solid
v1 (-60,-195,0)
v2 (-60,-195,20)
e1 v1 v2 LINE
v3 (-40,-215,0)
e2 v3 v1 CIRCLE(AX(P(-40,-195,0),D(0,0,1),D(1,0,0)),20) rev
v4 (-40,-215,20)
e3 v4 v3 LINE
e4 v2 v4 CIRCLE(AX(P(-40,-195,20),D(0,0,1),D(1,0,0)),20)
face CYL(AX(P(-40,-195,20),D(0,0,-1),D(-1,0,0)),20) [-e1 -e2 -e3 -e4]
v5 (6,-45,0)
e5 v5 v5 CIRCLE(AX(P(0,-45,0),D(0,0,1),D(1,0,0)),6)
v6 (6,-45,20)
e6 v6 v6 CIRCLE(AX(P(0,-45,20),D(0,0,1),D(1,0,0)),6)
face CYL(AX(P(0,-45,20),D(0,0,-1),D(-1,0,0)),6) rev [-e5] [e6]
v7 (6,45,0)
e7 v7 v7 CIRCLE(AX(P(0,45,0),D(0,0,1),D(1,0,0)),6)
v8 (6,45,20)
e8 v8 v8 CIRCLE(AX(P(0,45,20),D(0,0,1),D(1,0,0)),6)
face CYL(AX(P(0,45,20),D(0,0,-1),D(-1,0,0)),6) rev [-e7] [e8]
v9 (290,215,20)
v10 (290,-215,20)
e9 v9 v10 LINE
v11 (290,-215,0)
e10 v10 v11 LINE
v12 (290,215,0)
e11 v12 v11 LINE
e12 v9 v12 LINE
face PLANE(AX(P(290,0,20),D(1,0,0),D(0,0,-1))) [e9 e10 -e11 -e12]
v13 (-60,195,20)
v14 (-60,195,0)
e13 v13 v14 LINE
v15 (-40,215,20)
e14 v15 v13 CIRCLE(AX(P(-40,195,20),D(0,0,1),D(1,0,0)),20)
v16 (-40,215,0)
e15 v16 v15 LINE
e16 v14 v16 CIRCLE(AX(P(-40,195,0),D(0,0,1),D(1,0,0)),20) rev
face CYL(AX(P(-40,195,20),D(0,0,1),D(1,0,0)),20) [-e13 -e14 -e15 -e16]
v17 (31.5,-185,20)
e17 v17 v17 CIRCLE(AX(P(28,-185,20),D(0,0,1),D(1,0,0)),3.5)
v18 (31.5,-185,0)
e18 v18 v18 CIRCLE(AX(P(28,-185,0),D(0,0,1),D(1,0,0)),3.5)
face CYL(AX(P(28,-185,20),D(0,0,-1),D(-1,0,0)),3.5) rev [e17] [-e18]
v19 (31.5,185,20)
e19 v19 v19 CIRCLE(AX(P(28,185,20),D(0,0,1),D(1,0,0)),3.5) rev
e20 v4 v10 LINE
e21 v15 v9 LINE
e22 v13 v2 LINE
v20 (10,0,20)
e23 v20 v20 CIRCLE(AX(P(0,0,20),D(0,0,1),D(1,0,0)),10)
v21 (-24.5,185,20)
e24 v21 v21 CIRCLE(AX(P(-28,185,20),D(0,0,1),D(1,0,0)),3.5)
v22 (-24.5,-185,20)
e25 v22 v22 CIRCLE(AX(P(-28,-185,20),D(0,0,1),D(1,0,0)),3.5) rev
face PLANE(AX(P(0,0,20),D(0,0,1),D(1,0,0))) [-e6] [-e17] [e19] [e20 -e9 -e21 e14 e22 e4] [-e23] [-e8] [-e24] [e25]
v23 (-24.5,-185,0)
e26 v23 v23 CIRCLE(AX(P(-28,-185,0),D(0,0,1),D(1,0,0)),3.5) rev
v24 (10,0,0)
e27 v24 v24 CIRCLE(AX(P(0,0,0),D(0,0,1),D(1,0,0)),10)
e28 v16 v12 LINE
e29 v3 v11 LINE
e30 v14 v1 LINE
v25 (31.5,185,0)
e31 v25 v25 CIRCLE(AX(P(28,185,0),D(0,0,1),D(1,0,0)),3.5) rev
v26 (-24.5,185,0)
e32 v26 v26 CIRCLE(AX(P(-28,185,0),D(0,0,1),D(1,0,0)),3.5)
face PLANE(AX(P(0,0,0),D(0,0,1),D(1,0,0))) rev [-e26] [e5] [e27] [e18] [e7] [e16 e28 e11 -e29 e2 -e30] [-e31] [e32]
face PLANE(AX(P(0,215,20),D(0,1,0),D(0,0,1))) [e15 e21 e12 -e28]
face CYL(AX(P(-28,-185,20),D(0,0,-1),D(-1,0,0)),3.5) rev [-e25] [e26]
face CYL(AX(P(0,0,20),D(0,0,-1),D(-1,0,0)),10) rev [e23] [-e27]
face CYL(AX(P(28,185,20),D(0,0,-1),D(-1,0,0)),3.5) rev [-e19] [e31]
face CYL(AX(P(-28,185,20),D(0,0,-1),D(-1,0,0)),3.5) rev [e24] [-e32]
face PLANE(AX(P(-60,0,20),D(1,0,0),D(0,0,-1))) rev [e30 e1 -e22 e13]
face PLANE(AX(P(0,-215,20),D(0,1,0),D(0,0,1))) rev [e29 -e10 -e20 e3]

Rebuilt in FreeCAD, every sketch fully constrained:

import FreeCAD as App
import Part
import Sketcher
Q = App.Units.Quantity


def edges_at(feature, points):
    """Names of the edges that pass closest to the given points."""
    edges = feature.Shape.Edges
    near = lambda p: min(range(len(edges)), key=lambda i: edges[i].distToShape(Part.Vertex(*p))[0])
    return sorted({f"Edge{near(p) + 1}" for p in points})


def add_polygon(sketch, points):
    """Adds a closed chain of lines whose ends are joined by coincident constraints."""
    first, n = sketch.GeometryCount, len(points)
    for a, b in zip(points, points[1:] + points[:1]):
        sketch.addGeometry(Part.LineSegment(App.Vector(*a, 0), App.Vector(*b, 0)), False)
    for i in range(n):
        sketch.addConstraint(Sketcher.Constraint("Coincident", first + i, 2, first + (i + 1) % n, 1))

doc = App.newDocument("Part")
body = doc.addObject("PartDesign::Body", "Body")

sketch1 = body.newObject("Sketcher::SketchObject", "Sketch")
sketch1.AttachmentSupport = (doc.getObject("XY_Plane"), [""])
sketch1.MapMode = "FlatFace"
add_polygon(sketch1, [(-60, 215), (-60, -215), (290, -215), (290, 215)])
sketch1.addGeometry(Part.Circle(App.Vector(-28, -185, 0), App.Vector(0, 0, 1), 3.5), False)
sketch1.addGeometry(Part.Circle(App.Vector(28, -185, 0), App.Vector(0, 0, 1), 3.5), False)
sketch1.addGeometry(Part.Circle(App.Vector(0, -45, 0), App.Vector(0, 0, 1), 6), False)
sketch1.addGeometry(Part.Circle(App.Vector(-28, 185, 0), App.Vector(0, 0, 1), 3.5), False)
sketch1.addGeometry(Part.Circle(App.Vector(0, 0, 0), App.Vector(0, 0, 1), 10), False)
sketch1.addGeometry(Part.Circle(App.Vector(0, 45, 0), App.Vector(0, 0, 1), 6), False)
sketch1.addGeometry(Part.Circle(App.Vector(28, 185, 0), App.Vector(0, 0, 1), 3.5), False)
sketch1.addConstraint(Sketcher.Constraint("Vertical", 0))
sketch1.addConstraint(Sketcher.Constraint("Horizontal", 1))
sketch1.addConstraint(Sketcher.Constraint("Vertical", 2))
sketch1.addConstraint(Sketcher.Constraint("Horizontal", 3))
sketch1.addConstraint(Sketcher.Constraint("Coincident", 8, 3, -1, 1))
sketch1.addConstraint(Sketcher.Constraint("Equal", 4, 5))
sketch1.addConstraint(Sketcher.Constraint("Equal", 5, 7))
sketch1.addConstraint(Sketcher.Constraint("Equal", 6, 9))
sketch1.addConstraint(Sketcher.Constraint("Equal", 7, 10))
sketch1.addConstraint(Sketcher.Constraint("Symmetric", 5, 3, 7, 3, -1, 1))
sketch1.addConstraint(Sketcher.Constraint("Symmetric", 6, 3, 9, 3, -1, 1))
sketch1.addConstraint(Sketcher.Constraint("Symmetric", 4, 3, 10, 3, -1, 1))
sketch1.addConstraint(Sketcher.Constraint("Symmetric", 4, 3, 5, 3, -2))
sketch1.addConstraint(Sketcher.Constraint("PointOnObject", 6, 3, -2))
sketch1.addConstraint(Sketcher.Constraint("Diameter", 4, Q("7 mm")))
sketch1.addConstraint(Sketcher.Constraint("Diameter", 6, Q("12 mm")))
sketch1.addConstraint(Sketcher.Constraint("Diameter", 8, Q("20 mm")))
sketch1.addConstraint(Sketcher.Constraint("DistanceX", 1, 1, 1, 2, Q("350 mm")))
sketch1.addConstraint(Sketcher.Constraint("DistanceY", 0, 2, 0, 1, Q("430 mm")))
sketch1.addConstraint(Sketcher.Constraint("DistanceX", 4, 3, -1, 1, Q("28 mm")))
sketch1.addConstraint(Sketcher.Constraint("DistanceY", 4, 3, -1, 1, Q("185 mm")))
sketch1.addConstraint(Sketcher.Constraint("DistanceY", 6, 3, -1, 1, Q("45 mm")))
sketch1.addConstraint(Sketcher.Constraint("DistanceX", 0, 2, -1, 1, Q("60 mm")))
sketch1.addConstraint(Sketcher.Constraint("DistanceY", 0, 2, -1, 1, Q("215 mm")))
pad1 = body.newObject("PartDesign::Pad", "Pad")
pad1.Profile = sketch1
pad1.Length = 20
doc.recompute()

fillet = body.newObject("PartDesign::Fillet", "Fillet")
fillet.Base = (pad1, edges_at(pad1, [(-60, -215, 10), (-60, 215, 10)]))
fillet.Radius = 20

doc.recompute()
